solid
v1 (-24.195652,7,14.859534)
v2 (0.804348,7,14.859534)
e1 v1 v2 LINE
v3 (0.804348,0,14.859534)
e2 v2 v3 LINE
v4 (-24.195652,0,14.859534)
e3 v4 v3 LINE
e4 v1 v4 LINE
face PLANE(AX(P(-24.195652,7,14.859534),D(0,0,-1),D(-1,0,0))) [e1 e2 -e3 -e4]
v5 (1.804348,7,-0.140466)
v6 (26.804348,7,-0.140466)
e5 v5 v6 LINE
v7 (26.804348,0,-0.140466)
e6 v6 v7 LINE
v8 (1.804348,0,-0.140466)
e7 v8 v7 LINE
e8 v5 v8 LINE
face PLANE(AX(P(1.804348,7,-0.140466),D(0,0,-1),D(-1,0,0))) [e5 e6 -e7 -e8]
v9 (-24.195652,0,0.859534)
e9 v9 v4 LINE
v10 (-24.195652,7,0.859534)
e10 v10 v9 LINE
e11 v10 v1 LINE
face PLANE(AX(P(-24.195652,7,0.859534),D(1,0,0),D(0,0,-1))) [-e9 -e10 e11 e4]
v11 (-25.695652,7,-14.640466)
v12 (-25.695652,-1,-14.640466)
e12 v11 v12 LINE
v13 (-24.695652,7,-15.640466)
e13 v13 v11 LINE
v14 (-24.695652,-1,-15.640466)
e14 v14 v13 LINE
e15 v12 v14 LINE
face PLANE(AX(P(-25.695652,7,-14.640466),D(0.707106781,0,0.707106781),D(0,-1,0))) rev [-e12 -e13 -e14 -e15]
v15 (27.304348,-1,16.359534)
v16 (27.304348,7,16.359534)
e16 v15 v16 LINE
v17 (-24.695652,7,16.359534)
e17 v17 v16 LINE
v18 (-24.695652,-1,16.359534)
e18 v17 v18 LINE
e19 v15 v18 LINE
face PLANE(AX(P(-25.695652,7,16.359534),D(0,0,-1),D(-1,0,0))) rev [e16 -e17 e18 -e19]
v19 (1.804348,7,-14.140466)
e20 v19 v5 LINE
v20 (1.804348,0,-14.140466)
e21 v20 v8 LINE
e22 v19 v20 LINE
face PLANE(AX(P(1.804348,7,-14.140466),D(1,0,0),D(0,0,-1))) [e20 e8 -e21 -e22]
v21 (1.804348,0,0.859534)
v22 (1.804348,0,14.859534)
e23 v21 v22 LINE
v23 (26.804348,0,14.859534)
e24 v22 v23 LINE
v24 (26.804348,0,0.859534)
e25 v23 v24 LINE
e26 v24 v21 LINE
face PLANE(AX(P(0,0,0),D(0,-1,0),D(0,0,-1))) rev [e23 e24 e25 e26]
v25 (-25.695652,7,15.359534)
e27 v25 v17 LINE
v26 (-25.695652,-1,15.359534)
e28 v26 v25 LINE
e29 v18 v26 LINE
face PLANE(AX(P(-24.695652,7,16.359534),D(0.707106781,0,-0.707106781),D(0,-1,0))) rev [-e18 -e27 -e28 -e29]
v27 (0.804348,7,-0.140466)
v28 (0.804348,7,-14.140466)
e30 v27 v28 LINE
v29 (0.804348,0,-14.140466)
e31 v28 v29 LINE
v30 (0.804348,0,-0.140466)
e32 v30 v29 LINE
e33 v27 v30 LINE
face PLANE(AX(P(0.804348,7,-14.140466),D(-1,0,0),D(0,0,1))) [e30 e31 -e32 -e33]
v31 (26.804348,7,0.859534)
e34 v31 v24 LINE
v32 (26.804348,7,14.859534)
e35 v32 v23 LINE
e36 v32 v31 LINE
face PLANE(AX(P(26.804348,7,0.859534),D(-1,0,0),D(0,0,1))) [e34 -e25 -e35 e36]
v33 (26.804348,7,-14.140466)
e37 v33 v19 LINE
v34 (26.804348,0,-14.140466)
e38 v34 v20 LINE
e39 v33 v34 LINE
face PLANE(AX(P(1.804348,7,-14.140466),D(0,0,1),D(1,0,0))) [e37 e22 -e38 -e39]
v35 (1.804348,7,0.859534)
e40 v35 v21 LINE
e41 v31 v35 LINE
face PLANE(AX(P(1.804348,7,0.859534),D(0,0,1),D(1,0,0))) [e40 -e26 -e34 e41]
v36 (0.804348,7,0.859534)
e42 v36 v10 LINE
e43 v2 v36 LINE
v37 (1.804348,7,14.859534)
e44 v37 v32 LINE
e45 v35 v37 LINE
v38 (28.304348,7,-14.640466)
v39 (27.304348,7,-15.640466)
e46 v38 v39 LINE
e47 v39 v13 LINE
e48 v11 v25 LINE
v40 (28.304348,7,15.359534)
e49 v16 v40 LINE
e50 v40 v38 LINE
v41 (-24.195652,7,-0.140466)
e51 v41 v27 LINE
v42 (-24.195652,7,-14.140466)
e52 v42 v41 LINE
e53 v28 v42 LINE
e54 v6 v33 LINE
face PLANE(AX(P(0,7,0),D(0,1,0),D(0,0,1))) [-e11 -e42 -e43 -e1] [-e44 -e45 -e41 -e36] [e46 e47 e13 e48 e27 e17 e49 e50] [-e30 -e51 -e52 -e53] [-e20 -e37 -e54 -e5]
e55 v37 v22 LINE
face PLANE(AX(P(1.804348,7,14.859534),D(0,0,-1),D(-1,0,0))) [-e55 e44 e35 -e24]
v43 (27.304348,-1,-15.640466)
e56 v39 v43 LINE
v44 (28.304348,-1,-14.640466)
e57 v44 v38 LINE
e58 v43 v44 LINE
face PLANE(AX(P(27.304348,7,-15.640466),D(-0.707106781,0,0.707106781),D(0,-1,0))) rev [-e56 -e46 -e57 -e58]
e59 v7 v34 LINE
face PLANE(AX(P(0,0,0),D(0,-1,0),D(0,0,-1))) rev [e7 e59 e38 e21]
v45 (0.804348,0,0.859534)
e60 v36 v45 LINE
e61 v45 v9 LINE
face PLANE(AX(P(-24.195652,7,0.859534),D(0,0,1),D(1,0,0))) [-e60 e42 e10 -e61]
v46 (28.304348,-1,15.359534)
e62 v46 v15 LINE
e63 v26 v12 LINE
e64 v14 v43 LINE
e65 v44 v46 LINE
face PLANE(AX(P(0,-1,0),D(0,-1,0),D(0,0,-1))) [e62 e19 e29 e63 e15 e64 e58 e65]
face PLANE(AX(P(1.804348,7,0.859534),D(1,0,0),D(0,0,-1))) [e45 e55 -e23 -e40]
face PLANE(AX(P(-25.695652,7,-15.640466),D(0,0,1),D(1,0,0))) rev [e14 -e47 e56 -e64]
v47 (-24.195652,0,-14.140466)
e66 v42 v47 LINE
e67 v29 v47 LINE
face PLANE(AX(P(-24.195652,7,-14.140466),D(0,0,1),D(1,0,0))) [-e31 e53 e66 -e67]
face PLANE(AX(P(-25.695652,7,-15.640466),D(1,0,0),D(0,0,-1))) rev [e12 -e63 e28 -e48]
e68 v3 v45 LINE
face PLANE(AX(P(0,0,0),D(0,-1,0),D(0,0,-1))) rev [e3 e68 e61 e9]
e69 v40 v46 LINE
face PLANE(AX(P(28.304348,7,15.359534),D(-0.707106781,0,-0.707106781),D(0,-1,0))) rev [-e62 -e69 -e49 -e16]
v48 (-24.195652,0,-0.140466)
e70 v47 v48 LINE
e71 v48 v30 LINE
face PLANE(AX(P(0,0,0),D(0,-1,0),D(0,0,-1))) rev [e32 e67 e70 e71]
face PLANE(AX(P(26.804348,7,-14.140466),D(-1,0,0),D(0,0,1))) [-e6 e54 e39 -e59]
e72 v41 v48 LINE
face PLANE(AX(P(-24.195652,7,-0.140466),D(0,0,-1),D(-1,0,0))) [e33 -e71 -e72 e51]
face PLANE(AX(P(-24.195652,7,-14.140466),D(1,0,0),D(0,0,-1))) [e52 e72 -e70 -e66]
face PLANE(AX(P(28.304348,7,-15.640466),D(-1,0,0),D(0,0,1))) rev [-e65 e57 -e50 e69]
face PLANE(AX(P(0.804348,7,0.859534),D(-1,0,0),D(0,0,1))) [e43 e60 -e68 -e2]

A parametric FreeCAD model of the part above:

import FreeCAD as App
import Part
import Sketcher

V = App.Vector
Q = App.Units.Quantity


def edges_at(feature, points):
    """Names of the edges that pass closest to the given points."""
    edges = feature.Shape.Edges
    near = lambda p: min(range(len(edges)), key=lambda i: edges[i].distToShape(Part.Vertex(*p))[0])
    return sorted({f"Edge{near(p) + 1}" for p in points})


def add_polygon(sketch, points):
    """Adds a closed chain of lines whose ends are joined by coincident constraints."""
    first, n = sketch.GeometryCount, len(points)
    for a, b in zip(points, points[1:] + points[:1]):
        sketch.addGeometry(Part.LineSegment(App.Vector(*a, 0), App.Vector(*b, 0)), False)
    for i in range(n):
        sketch.addConstraint(Sketcher.Constraint("Coincident", first + i, 2, first + (i + 1) % n, 1))

doc = App.newDocument("Part")
body = doc.addObject("PartDesign::Body", "Body")

# Sketch on XZ plane
sketch1 = body.newObject("Sketcher::SketchObject", "Sketch")
sketch1.AttachmentSupport = (doc.getObject("XZ_Plane"), [""])
sketch1.MapMode = "FlatFace"
add_polygon(sketch1, [(-26, -16), (-26, 16), (28, 16), (28, -16)])  # lines 0-3
add_polygon(sketch1, [(1, 15), (-24, 15), (-24, 1), (1, 1)])  # lines 4-7
add_polygon(sketch1, [(27, 15), (2, 15), (2, 1), (27, 1)])  # lines 8-11
add_polygon(sketch1, [(1, 0), (-24, 0), (-24, -14), (1, -14)])  # lines 12-15
add_polygon(sketch1, [(27, 0), (2, 0), (2, -14), (27, -14)])  # lines 16-19
sketch1.addConstraint([
    Sketcher.Constraint("Vertical", 0),
    Sketcher.Constraint("Horizontal", 1),
    Sketcher.Constraint("Vertical", 2),
    Sketcher.Constraint("Horizontal", 3),
    Sketcher.Constraint("Horizontal", 4),
    Sketcher.Constraint("Vertical", 5),
    Sketcher.Constraint("Horizontal", 6),
    Sketcher.Constraint("Vertical", 7),
    Sketcher.Constraint("Horizontal", 8),
    Sketcher.Constraint("Vertical", 9),
    Sketcher.Constraint("Horizontal", 10),
    Sketcher.Constraint("Vertical", 11),
    Sketcher.Constraint("Horizontal", 12),
    Sketcher.Constraint("Vertical", 13),
    Sketcher.Constraint("Horizontal", 14),
    Sketcher.Constraint("Vertical", 15),
    Sketcher.Constraint("Horizontal", 16),
    Sketcher.Constraint("Vertical", 17),
    Sketcher.Constraint("Horizontal", 18),
    Sketcher.Constraint("Vertical", 19),
    Sketcher.Constraint("Horizontal", 7, 2, 8, 2),
    Sketcher.Constraint("Horizontal", 6, 2, 9, 2),
    Sketcher.Constraint("Horizontal", 15, 2, 16, 2),
    Sketcher.Constraint("Horizontal", 14, 2, 17, 2),
    Sketcher.Constraint("Vertical", 5, 2, 12, 2),
    Sketcher.Constraint("Vertical", 7, 2, 14, 2),
    Sketcher.Constraint("Vertical", 9, 2, 16, 2),
    Sketcher.Constraint("Vertical", 11, 2, 18, 2),
    Sketcher.Constraint("Equal", 6, 8),
    Sketcher.Constraint("Equal", 11, 13),
    Sketcher.Constraint("DistanceX", 1, 1, 1, 2, Q("54 mm")),
    Sketcher.Constraint("DistanceX", 4, 2, 4, 1, Q("25 mm")),
    Sketcher.Constraint("DistanceY", 0, 1, 0, 2, Q("32 mm")),
    Sketcher.Constraint("DistanceY", 5, 2, 5, 1, Q("14 mm")),
    Sketcher.Constraint("DistanceX", 7, 2, 8, 2, Q("1 mm")),
    Sketcher.Constraint("DistanceY", 12, 2, 5, 2, Q("1 mm")),
    Sketcher.Constraint("DistanceX", 0, 2, 4, 2, Q("1.5 mm")),
    Sketcher.Constraint("DistanceY", 4, 2, 0, 2, Q("1.5 mm")),
    Sketcher.Constraint("DistanceX", 0, 2, -1, 1, Q("25.695652 mm")),
    Sketcher.Constraint("DistanceY", -1, 1, 0, 2, Q("16.359534 mm")),
])
pad1 = body.newObject("PartDesign::Pad", "Pad")
pad1.Profile = sketch1
pad1.Length = 7
pad1.Reversed = True

# Sketch on XZ plane
sketch2 = body.newObject("Sketcher::SketchObject", "Sketch001")
sketch2.AttachmentSupport = (doc.getObject("XZ_Plane"), [""])
sketch2.MapMode = "FlatFace"
add_polygon(sketch2, [(-26, 16), (-26, -16), (28, -16), (28, 16)])  # lines 0-3
sketch2.addConstraint([
    Sketcher.Constraint("Vertical", 0),
    Sketcher.Constraint("Horizontal", 1),
    Sketcher.Constraint("Vertical", 2),
    Sketcher.Constraint("Horizontal", 3),
    Sketcher.Constraint("DistanceX", 1, 1, 1, 2, Q("54 mm")),
    Sketcher.Constraint("DistanceY", 0, 2, 0, 1, Q("32 mm")),
    Sketcher.Constraint("DistanceX", 0, 2, -1, 1, Q("25.695652 mm")),
    Sketcher.Constraint("DistanceY", 0, 2, -1, 1, Q("15.640466 mm")),
])
pad2 = body.newObject("PartDesign::Pad", "Pad001")
pad2.Profile = sketch2
pad2.Length = 1
doc.recompute()

chamfer = body.newObject("PartDesign::Chamfer", "Chamfer")
chamfer.Base = (pad2, edges_at(pad2, [
    (-25.696, 3, -15.64),
    (28.304, 3, -15.64),
    (28.304, 3, 16.36),
    (-25.696, 3, 16.36),
]))
chamfer.Size = 1

doc.recompute()
